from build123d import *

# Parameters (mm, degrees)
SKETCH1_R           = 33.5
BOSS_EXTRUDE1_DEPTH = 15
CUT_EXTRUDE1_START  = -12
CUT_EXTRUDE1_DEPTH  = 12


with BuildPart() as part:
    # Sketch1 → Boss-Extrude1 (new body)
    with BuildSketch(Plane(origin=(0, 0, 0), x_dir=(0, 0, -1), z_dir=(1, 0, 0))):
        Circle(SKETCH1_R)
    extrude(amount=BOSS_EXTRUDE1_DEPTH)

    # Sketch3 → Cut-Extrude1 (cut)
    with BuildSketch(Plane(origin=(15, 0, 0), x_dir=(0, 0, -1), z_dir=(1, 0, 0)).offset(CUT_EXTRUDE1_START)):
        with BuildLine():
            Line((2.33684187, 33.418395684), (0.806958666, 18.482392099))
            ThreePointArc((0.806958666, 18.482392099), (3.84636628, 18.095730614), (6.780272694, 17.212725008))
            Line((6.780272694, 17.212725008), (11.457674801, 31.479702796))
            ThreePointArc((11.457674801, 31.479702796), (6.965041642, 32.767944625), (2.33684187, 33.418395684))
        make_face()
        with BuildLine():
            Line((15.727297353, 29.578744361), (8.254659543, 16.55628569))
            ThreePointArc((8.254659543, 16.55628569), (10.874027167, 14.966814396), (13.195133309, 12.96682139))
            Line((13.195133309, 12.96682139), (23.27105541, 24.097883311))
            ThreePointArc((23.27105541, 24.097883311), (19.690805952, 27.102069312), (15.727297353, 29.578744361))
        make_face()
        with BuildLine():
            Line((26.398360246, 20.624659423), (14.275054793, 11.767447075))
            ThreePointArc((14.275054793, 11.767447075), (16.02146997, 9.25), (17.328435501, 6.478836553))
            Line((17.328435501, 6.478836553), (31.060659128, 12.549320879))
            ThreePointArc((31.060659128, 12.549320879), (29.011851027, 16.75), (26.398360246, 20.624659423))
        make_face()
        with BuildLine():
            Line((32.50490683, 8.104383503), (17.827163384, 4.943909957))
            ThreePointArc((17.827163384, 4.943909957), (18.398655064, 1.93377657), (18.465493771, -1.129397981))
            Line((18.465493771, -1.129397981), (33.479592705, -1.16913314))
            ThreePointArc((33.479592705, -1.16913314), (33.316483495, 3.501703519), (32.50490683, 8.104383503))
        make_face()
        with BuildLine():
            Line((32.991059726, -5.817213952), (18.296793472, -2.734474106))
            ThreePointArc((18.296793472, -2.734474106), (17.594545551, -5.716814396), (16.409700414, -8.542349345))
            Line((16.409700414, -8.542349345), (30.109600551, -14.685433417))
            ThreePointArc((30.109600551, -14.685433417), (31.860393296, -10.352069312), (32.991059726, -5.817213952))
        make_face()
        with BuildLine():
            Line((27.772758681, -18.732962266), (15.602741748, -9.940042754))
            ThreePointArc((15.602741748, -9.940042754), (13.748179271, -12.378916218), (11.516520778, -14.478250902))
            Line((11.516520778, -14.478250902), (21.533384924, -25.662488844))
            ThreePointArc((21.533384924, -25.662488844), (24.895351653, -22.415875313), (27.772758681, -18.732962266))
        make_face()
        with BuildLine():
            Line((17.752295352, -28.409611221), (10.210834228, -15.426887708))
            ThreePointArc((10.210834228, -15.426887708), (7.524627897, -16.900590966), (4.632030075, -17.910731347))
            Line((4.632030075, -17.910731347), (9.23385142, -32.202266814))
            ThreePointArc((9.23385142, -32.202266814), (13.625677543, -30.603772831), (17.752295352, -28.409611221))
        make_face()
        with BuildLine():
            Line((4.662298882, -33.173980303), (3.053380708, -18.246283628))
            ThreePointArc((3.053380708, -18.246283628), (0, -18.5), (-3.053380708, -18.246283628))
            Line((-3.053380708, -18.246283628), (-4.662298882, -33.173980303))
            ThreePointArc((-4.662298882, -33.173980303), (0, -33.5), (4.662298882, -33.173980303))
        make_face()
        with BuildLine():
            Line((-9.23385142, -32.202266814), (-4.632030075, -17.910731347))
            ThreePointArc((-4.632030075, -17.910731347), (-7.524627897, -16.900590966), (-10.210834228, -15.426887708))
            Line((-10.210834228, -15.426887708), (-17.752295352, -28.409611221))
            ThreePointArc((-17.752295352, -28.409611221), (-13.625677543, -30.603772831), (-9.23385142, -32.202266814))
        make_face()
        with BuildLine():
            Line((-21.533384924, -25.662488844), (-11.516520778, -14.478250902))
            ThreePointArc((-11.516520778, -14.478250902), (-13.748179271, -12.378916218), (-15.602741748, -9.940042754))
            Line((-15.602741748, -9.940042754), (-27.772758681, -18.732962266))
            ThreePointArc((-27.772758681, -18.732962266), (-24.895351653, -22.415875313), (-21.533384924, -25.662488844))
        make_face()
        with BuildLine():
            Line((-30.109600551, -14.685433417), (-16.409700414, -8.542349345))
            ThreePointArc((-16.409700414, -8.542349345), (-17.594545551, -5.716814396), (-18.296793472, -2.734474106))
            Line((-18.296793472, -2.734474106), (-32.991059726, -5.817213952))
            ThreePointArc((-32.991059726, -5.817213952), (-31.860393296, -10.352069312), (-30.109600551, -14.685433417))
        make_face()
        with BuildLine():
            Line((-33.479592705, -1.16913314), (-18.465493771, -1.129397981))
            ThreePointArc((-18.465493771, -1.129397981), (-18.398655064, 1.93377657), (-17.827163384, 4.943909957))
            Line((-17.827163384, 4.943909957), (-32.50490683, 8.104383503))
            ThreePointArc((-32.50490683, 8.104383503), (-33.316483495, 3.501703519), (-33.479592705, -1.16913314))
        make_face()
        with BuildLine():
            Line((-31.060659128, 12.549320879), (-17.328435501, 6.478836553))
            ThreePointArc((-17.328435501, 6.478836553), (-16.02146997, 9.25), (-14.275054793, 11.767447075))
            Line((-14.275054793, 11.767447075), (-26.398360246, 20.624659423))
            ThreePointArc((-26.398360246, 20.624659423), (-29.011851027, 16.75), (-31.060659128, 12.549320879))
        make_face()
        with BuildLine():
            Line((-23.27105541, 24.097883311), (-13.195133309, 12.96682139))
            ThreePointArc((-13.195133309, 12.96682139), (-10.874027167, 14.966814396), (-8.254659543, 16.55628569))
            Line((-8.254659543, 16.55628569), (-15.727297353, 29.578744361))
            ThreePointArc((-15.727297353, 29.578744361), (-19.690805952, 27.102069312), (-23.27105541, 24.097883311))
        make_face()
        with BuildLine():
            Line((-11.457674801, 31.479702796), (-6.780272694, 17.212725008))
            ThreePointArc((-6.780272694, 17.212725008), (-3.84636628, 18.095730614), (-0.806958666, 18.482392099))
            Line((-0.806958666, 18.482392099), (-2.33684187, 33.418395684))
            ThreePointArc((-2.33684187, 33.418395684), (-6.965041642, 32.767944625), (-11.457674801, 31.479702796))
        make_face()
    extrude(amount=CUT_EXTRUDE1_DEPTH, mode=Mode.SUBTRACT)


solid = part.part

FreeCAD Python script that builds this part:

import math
import FreeCAD as App
import Part
import Sketcher

V = App.Vector

doc = App.newDocument("Part")
body = doc.addObject("PartDesign::Body", "Body")

sketch1 = doc.addObject("Sketcher::SketchObject", "Sketch")
body.addObject(sketch1)
sketch1.AttachmentSupport = (doc.YZ_Plane, [""])
sketch1.MapMode = "FlatFace"
sketch1.addGeometry(Part.Circle(V(0, 0, 0), V(0, 0, 1), 33.5), False)
sketch1.addConstraint([
    Sketcher.Constraint("Coincident", 0, 3, -1, 1),
    Sketcher.Constraint("Diameter", 0, 67.0),
])
pad1 = doc.addObject("PartDesign::Pad", "Pad")
body.addObject(pad1)
pad1.Profile = sketch1
pad1.Length = 15

sketch2 = doc.addObject("Sketcher::SketchObject", "Sketch001")
body.addObject(sketch2)
sketch2.AttachmentSupport = (doc.YZ_Plane, [""])
sketch2.MapMode = "FlatFace"
sketch2.AttachmentOffset = App.Placement(V(0, 0, 3), App.Rotation())
sketch2.addGeometry([
    Part.LineSegment(V(33.418396, -2.336842, 0), V(18.482392, -0.806959, 0)),
    Part.ArcOfCircle(Part.Circle(V(0, 0, 0), V(0, 0, 1), 18.5), math.radians(-21.5), math.radians(-2.5)),
    Part.LineSegment(V(17.212725, -6.780273, 0), V(31.479703, -11.457675, 0)),
    Part.ArcOfCircle(Part.Circle(V(0, 0, 0), V(0, 0, 1), 33.5), math.radians(-20), math.radians(-4)),
    Part.LineSegment(V(29.578744, -15.727297, 0), V(16.556286, -8.25466, 0)),
    Part.ArcOfCircle(Part.Circle(V(0, 0, 0), V(0, 0, 1), 18.5), math.radians(-45.5), math.radians(-26.5)),
    Part.LineSegment(V(12.966821, -13.195133, 0), V(24.097883, -23.271055, 0)),
    Part.ArcOfCircle(Part.Circle(V(0, 0, 0), V(0, 0, 1), 33.5), math.radians(-44), math.radians(-28)),
    Part.LineSegment(V(20.624659, -26.39836, 0), V(11.767447, -14.275055, 0)),
    Part.ArcOfCircle(Part.Circle(V(0, 0, 0), V(0, 0, 1), 18.5), math.radians(-69.5), math.radians(-50.5)),
    Part.LineSegment(V(6.478837, -17.328436, 0), V(12.549321, -31.060659, 0)),
    Part.ArcOfCircle(Part.Circle(V(0, 0, 0), V(0, 0, 1), 33.5), math.radians(-68), math.radians(-52)),
    Part.LineSegment(V(8.104384, -32.504907, 0), V(4.94391, -17.827163, 0)),
    Part.ArcOfCircle(Part.Circle(V(0, 0, 0), V(0, 0, 1), 18.5), math.radians(-93.5), math.radians(-74.5)),
    Part.LineSegment(V(-1.129398, -18.465494, 0), V(-1.169133, -33.479593, 0)),
    Part.ArcOfCircle(Part.Circle(V(0, 0, 0), V(0, 0, 1), 33.5), math.radians(-92), math.radians(-76)),
    Part.LineSegment(V(-5.817214, -32.99106, 0), V(-2.734474, -18.296793, 0)),
    Part.ArcOfCircle(Part.Circle(V(0, 0, 0), V(0, 0, 1), 18.5), math.radians(-117.5), math.radians(-98.5)),
    Part.LineSegment(V(-8.542349, -16.4097, 0), V(-14.685433, -30.109601, 0)),
    Part.ArcOfCircle(Part.Circle(V(0, 0, 0), V(0, 0, 1), 33.5), math.radians(-116), math.radians(-100)),
    Part.LineSegment(V(-18.732962, -27.772759, 0), V(-9.940043, -15.602742, 0)),
    Part.ArcOfCircle(Part.Circle(V(0, 0, 0), V(0, 0, 1), 18.5), math.radians(-141.5), math.radians(-122.5)),
    Part.LineSegment(V(-14.478251, -11.516521, 0), V(-25.662489, -21.533385, 0)),
    Part.ArcOfCircle(Part.Circle(V(0, 0, 0), V(0, 0, 1), 33.5), math.radians(-140), math.radians(-124)),
    Part.LineSegment(V(-28.409611, -17.752295, 0), V(-15.426888, -10.210834, 0)),
    Part.ArcOfCircle(Part.Circle(V(0, 0, 0), V(0, 0, 1), 18.5), math.radians(-165.5), math.radians(-146.5)),
    Part.LineSegment(V(-17.910731, -4.63203, 0), V(-32.202267, -9.233851, 0)),
    Part.ArcOfCircle(Part.Circle(V(0, 0, 0), V(0, 0, 1), 33.5), math.radians(-164), math.radians(-148)),
    Part.LineSegment(V(-33.17398, -4.662299, 0), V(-18.246284, -3.053381, 0)),
    Part.ArcOfCircle(Part.Circle(V(0, 0, 0), V(0, 0, 1), 18.5), math.radians(170.5), math.radians(189.5)),
    Part.LineSegment(V(-18.246284, 3.053381, 0), V(-33.17398, 4.662299, 0)),
    Part.ArcOfCircle(Part.Circle(V(0, 0, 0), V(0, 0, 1), 33.5), math.radians(172), math.radians(188)),
    Part.LineSegment(V(-32.202267, 9.233851, 0), V(-17.910731, 4.63203, 0)),
    Part.ArcOfCircle(Part.Circle(V(0, 0, 0), V(0, 0, 1), 18.5), math.radians(146.5), math.radians(165.5)),
    Part.LineSegment(V(-15.426888, 10.210834, 0), V(-28.409611, 17.752295, 0)),
    Part.ArcOfCircle(Part.Circle(V(0, 0, 0), V(0, 0, 1), 33.5), math.radians(148), math.radians(164)),
    Part.LineSegment(V(-25.662489, 21.533385, 0), V(-14.478251, 11.516521, 0)),
    Part.ArcOfCircle(Part.Circle(V(0, 0, 0), V(0, 0, 1), 18.5), math.radians(122.5), math.radians(141.5)),
    Part.LineSegment(V(-9.940043, 15.602742, 0), V(-18.732962, 27.772759, 0)),
    Part.ArcOfCircle(Part.Circle(V(0, 0, 0), V(0, 0, 1), 33.5), math.radians(124), math.radians(140)),
    Part.LineSegment(V(-14.685433, 30.109601, 0), V(-8.542349, 16.4097, 0)),
    Part.ArcOfCircle(Part.Circle(V(0, 0, 0), V(0, 0, 1), 18.5), math.radians(98.5), math.radians(117.5)),
    Part.LineSegment(V(-2.734474, 18.296793, 0), V(-5.817214, 32.99106, 0)),
    Part.ArcOfCircle(Part.Circle(V(0, 0, 0), V(0, 0, 1), 33.5), math.radians(100), math.radians(116)),
    Part.LineSegment(V(-1.169133, 33.479593, 0), V(-1.129398, 18.465494, 0)),
    Part.ArcOfCircle(Part.Circle(V(0, 0, 0), V(0, 0, 1), 18.5), math.radians(74.5), math.radians(93.5)),
    Part.LineSegment(V(4.94391, 17.827163, 0), V(8.104384, 32.504907, 0)),
    Part.ArcOfCircle(Part.Circle(V(0, 0, 0), V(0, 0, 1), 33.5), math.radians(76), math.radians(92)),
    Part.LineSegment(V(12.549321, 31.060659, 0), V(6.478837, 17.328436, 0)),
    Part.ArcOfCircle(Part.Circle(V(0, 0, 0), V(0, 0, 1), 18.5), math.radians(50.5), math.radians(69.5)),
    Part.LineSegment(V(11.767447, 14.275055, 0), V(20.624659, 26.39836, 0)),
    Part.ArcOfCircle(Part.Circle(V(0, 0, 0), V(0, 0, 1), 33.5), math.radians(52), math.radians(68)),
    Part.LineSegment(V(24.097883, 23.271055, 0), V(12.966821, 13.195133, 0)),
    Part.ArcOfCircle(Part.Circle(V(0, 0, 0), V(0, 0, 1), 18.5), math.radians(26.5), math.radians(45.5)),
    Part.LineSegment(V(16.556286, 8.25466, 0), V(29.578744, 15.727297, 0)),
    Part.ArcOfCircle(Part.Circle(V(0, 0, 0), V(0, 0, 1), 33.5), math.radians(28), math.radians(44)),
    Part.LineSegment(V(31.479703, 11.457675, 0), V(17.212725, 6.780273, 0)),
    Part.ArcOfCircle(Part.Circle(V(0, 0, 0), V(0, 0, 1), 18.5), math.radians(2.5), math.radians(21.5)),
    Part.LineSegment(V(18.482392, 0.806959, 0), V(33.418396, 2.336842, 0)),
    Part.ArcOfCircle(Part.Circle(V(0, 0, 0), V(0, 0, 1), 33.5), math.radians(4), math.radians(20)),
], False)
sketch2.addConstraint([
    Sketcher.Constraint("Coincident", 0, 2, 1, 2),
    Sketcher.Constraint("Coincident", 1, 1, 2, 1),
    Sketcher.Constraint("Coincident", 2, 2, 3, 1),
    Sketcher.Constraint("Coincident", 3, 2, 0, 1),
    Sketcher.Constraint("Coincident", 4, 2, 5, 2),
    Sketcher.Constraint("Coincident", 5, 1, 6, 1),
    Sketcher.Constraint("Coincident", 6, 2, 7, 1),
    Sketcher.Constraint("Coincident", 7, 2, 4, 1),
    Sketcher.Constraint("Coincident", 8, 2, 9, 2),
    Sketcher.Constraint("Coincident", 9, 1, 10, 1),
    Sketcher.Constraint("Coincident", 10, 2, 11, 1),
    Sketcher.Constraint("Coincident", 11, 2, 8, 1),
    Sketcher.Constraint("Coincident", 12, 2, 13, 2),
    Sketcher.Constraint("Coincident", 13, 1, 14, 1),
    Sketcher.Constraint("Coincident", 14, 2, 15, 1),
    Sketcher.Constraint("Coincident", 15, 2, 12, 1),
    Sketcher.Constraint("Coincident", 16, 2, 17, 2),
    Sketcher.Constraint("Coincident", 17, 1, 18, 1),
    Sketcher.Constraint("Coincident", 18, 2, 19, 1),
    Sketcher.Constraint("Coincident", 19, 2, 16, 1),
    Sketcher.Constraint("Coincident", 20, 2, 21, 2),
    Sketcher.Constraint("Coincident", 21, 1, 22, 1),
    Sketcher.Constraint("Coincident", 22, 2, 23, 1),
    Sketcher.Constraint("Coincident", 23, 2, 20, 1),
    Sketcher.Constraint("Coincident", 24, 2, 25, 2),
    Sketcher.Constraint("Coincident", 25, 1, 26, 1),
    Sketcher.Constraint("Coincident", 26, 2, 27, 1),
    Sketcher.Constraint("Coincident", 27, 2, 24, 1),
    Sketcher.Constraint("Coincident", 28, 2, 29, 2),
    Sketcher.Constraint("Coincident", 29, 1, 30, 1),
    Sketcher.Constraint("Coincident", 30, 2, 31, 1),
    Sketcher.Constraint("Coincident", 31, 2, 28, 1),
    Sketcher.Constraint("Coincident", 32, 2, 33, 2),
    Sketcher.Constraint("Coincident", 33, 1, 34, 1),
    Sketcher.Constraint("Coincident", 34, 2, 35, 1),
    Sketcher.Constraint("Coincident", 35, 2, 32, 1),
    Sketcher.Constraint("Coincident", 36, 2, 37, 2),
    Sketcher.Constraint("Coincident", 37, 1, 38, 1),
    Sketcher.Constraint("Coincident", 38, 2, 39, 1),
    Sketcher.Constraint("Coincident", 39, 2, 36, 1),
    Sketcher.Constraint("Coincident", 40, 2, 41, 2),
    Sketcher.Constraint("Coincident", 41, 1, 42, 1),
    Sketcher.Constraint("Coincident", 42, 2, 43, 1),
    Sketcher.Constraint("Coincident", 43, 2, 40, 1),
    Sketcher.Constraint("Coincident", 44, 2, 45, 2),
    Sketcher.Constraint("Coincident", 45, 1, 46, 1),
    Sketcher.Constraint("Coincident", 46, 2, 47, 1),
    Sketcher.Constraint("Coincident", 47, 2, 44, 1),
    Sketcher.Constraint("Coincident", 48, 2, 49, 2),
    Sketcher.Constraint("Coincident", 49, 1, 50, 1),
    Sketcher.Constraint("Coincident", 50, 2, 51, 1),
    Sketcher.Constraint("Coincident", 51, 2, 48, 1),
    Sketcher.Constraint("Coincident", 52, 2, 53, 2),
    Sketcher.Constraint("Coincident", 53, 1, 54, 1),
    Sketcher.Constraint("Coincident", 54, 2, 55, 1),
    Sketcher.Constraint("Coincident", 55, 2, 52, 1),
    Sketcher.Constraint("Coincident", 56, 2, 57, 2),
    Sketcher.Constraint("Coincident", 57, 1, 58, 1),
    Sketcher.Constraint("Coincident", 58, 2, 59, 1),
    Sketcher.Constraint("Coincident", 59, 2, 56, 1),
    Sketcher.Constraint("Coincident", 1, 3, -1, 1),
    Sketcher.Constraint("Coincident", 3, 3, -1, 1),
    Sketcher.Constraint("Coincident", 5, 3, -1, 1),
    Sketcher.Constraint("Coincident", 7, 3, -1, 1),
    Sketcher.Constraint("Coincident", 9, 3, -1, 1),
    Sketcher.Constraint("Coincident", 11, 3, -1, 1),
    Sketcher.Constraint("Coincident", 13, 3, -1, 1),
    Sketcher.Constraint("Coincident", 15, 3, -1, 1),
    Sketcher.Constraint("Coincident", 17, 3, -1, 1),
    Sketcher.Constraint("Coincident", 19, 3, -1, 1),
    Sketcher.Constraint("Coincident", 21, 3, -1, 1),
    Sketcher.Constraint("Coincident", 23, 3, -1, 1),
    Sketcher.Constraint("Coincident", 25, 3, -1, 1),
    Sketcher.Constraint("Coincident", 27, 3, -1, 1),
    Sketcher.Constraint("Coincident", 29, 3, -1, 1),
    Sketcher.Constraint("Coincident", 31, 3, -1, 1),
    Sketcher.Constraint("Coincident", 33, 3, -1, 1),
    Sketcher.Constraint("Coincident", 35, 3, -1, 1),
    Sketcher.Constraint("Coincident", 37, 3, -1, 1),
    Sketcher.Constraint("Coincident", 39, 3, -1, 1),
    Sketcher.Constraint("Coincident", 41, 3, -1, 1),
    Sketcher.Constraint("Coincident", 43, 3, -1, 1),
    Sketcher.Constraint("Coincident", 45, 3, -1, 1),
    Sketcher.Constraint("Coincident", 47, 3, -1, 1),
    Sketcher.Constraint("Coincident", 49, 3, -1, 1),
    Sketcher.Constraint("Coincident", 51, 3, -1, 1),
    Sketcher.Constraint("Coincident", 53, 3, -1, 1),
    Sketcher.Constraint("Coincident", 55, 3, -1, 1),
    Sketcher.Constraint("Coincident", 57, 3, -1, 1),
    Sketcher.Constraint("Coincident", 59, 3, -1, 1),
    Sketcher.Constraint("Equal", 1, 5),
    Sketcher.Constraint("Equal", 3, 7),
    Sketcher.Constraint("Equal", 5, 9),
    Sketcher.Constraint("Equal", 7, 11),
    Sketcher.Constraint("Equal", 9, 13),
    Sketcher.Constraint("Equal", 11, 15),
    Sketcher.Constraint("Equal", 13, 17),
    Sketcher.Constraint("Equal", 15, 19),
    Sketcher.Constraint("Equal", 17, 21),
    Sketcher.Constraint("Equal", 19, 23),
    Sketcher.Constraint("Equal", 21, 25),
    Sketcher.Constraint("Equal", 23, 27),
    Sketcher.Constraint("Equal", 25, 29),
    Sketcher.Constraint("Equal", 27, 31),
    Sketcher.Constraint("Equal", 29, 33),
    Sketcher.Constraint("Equal", 31, 35),
    Sketcher.Constraint("Equal", 33, 37),
    Sketcher.Constraint("Equal", 35, 39),
    Sketcher.Constraint("Equal", 37, 41),
    Sketcher.Constraint("Equal", 39, 43),
    Sketcher.Constraint("Equal", 41, 45),
    Sketcher.Constraint("Equal", 43, 47),
    Sketcher.Constraint("Equal", 45, 49),
    Sketcher.Constraint("Equal", 47, 51),
    Sketcher.Constraint("Equal", 49, 53),
    Sketcher.Constraint("Equal", 51, 55),
    Sketcher.Constraint("Equal", 53, 57),
    Sketcher.Constraint("Equal", 55, 59),
    Sketcher.Constraint("Vertical", 28, 2, 29, 1),
    Sketcher.Constraint("Vertical", 30, 2, 31, 2),
    Sketcher.Constraint("Vertical", 25, 1, 32, 2),
    Sketcher.Constraint("Vertical", 24, 2, 33, 1),
    Sketcher.Constraint("Vertical", 27, 2, 34, 2),
    Sketcher.Constraint("Vertical", 26, 2, 35, 2),
    Sketcher.Constraint("Vertical", 21, 1, 36, 2),
    Sketcher.Constraint("Vertical", 20, 2, 37, 1),
    Sketcher.Constraint("Vertical", 23, 2, 38, 2),
    Sketcher.Constraint("Vertical", 22, 2, 39, 2),
    Sketcher.Constraint("Vertical", 17, 1, 40, 2),
    Sketcher.Constraint("Vertical", 16, 2, 41, 1),
    Sketcher.Constraint("Vertical", 19, 2, 42, 2),
    Sketcher.Constraint("Vertical", 18, 2, 43, 2),
    Sketcher.Constraint("Vertical", 13, 1, 44, 2),
    Sketcher.Constraint("Vertical", 12, 2, 45, 1),
    Sketcher.Constraint("Vertical", 15, 2, 46, 2),
    Sketcher.Constraint("Vertical", 14, 2, 47, 2),
    Sketcher.Constraint("Vertical", 9, 1, 48, 2),
    Sketcher.Constraint("Vertical", 8, 2, 49, 1),
    Sketcher.Constraint("Vertical", 11, 2, 50, 2),
    Sketcher.Constraint("Vertical", 10, 2, 51, 2),
    Sketcher.Constraint("Vertical", 5, 1, 52, 2),
    Sketcher.Constraint("Vertical", 4, 2, 53, 1),
    Sketcher.Constraint("Vertical", 7, 2, 54, 2),
    Sketcher.Constraint("Vertical", 6, 2, 55, 2),
    Sketcher.Constraint("Vertical", 1, 1, 56, 2),
    Sketcher.Constraint("Vertical", 0, 2, 57, 1),
    Sketcher.Constraint("Vertical", 3, 2, 58, 2),
    Sketcher.Constraint("Vertical", 2, 2, 59, 2),
    Sketcher.Constraint("Equal", 0, 2),
    Sketcher.Constraint("Equal", 2, 4),
    Sketcher.Constraint("Equal", 4, 6),
    Sketcher.Constraint("Equal", 6, 8),
    Sketcher.Constraint("Equal", 8, 10),
    Sketcher.Constraint("Equal", 10, 12),
    Sketcher.Constraint("Equal", 12, 14),
    Sketcher.Constraint("Equal", 14, 16),
    Sketcher.Constraint("Equal", 16, 18),
    Sketcher.Constraint("Equal", 18, 20),
    Sketcher.Constraint("Equal", 20, 22),
    Sketcher.Constraint("Equal", 22, 24),
    Sketcher.Constraint("Equal", 24, 26),
    Sketcher.Constraint("Equal", 26, 28),
    Sketcher.Constraint("Radius", 1, 18.5),
    Sketcher.Constraint("Radius", 3, 33.5),
    Sketcher.Constraint("DistanceY", 17, 1, -1, 1, 16.4097),
    Sketcher.Constraint("DistanceY", 18, 2, -1, 1, 30.109601),
    Sketcher.Constraint("DistanceY", -1, 1, 30, 2, 4.662299),
    Sketcher.Constraint("DistanceY", 0, 2, -1, 1, 0.806959),
    Sketcher.Constraint("DistanceY", 4, 2, -1, 1, 8.25466),
    Sketcher.Constraint("DistanceX", -1, 1, 5, 1, 12.966821),
    Sketcher.Constraint("DistanceX", -1, 1, 10, 2, 12.549321),
    Sketcher.Constraint("DistanceX", -1, 1, 11, 2, 20.624659),
    Sketcher.Constraint("DistanceX", -1, 1, 12, 2, 4.94391),
    Sketcher.Constraint("DistanceY", 19, 2, -1, 1, 32.99106),
    Sketcher.Constraint("DistanceY", 20, 2, -1, 1, 15.602742),
    Sketcher.Constraint("DistanceX", 21, 1, -1, 1, 14.478251),
    Sketcher.Constraint("DistanceX", 25, 1, -1, 1, 17.910731),
    Sketcher.Constraint("DistanceX", 27, 2, -1, 1, 28.409611),
    Sketcher.Constraint("DistanceX", -1, 1, 1, 1, 17.212725),
    Sketcher.Constraint("DistanceX", 13, 1, -1, 1, 1.129398),
])
pocket1 = doc.addObject("PartDesign::Pocket", "Pocket")
body.addObject(pocket1)
pocket1.Profile = sketch2
pocket1.Length = 12
pocket1.Reversed = True

doc.recompute()
